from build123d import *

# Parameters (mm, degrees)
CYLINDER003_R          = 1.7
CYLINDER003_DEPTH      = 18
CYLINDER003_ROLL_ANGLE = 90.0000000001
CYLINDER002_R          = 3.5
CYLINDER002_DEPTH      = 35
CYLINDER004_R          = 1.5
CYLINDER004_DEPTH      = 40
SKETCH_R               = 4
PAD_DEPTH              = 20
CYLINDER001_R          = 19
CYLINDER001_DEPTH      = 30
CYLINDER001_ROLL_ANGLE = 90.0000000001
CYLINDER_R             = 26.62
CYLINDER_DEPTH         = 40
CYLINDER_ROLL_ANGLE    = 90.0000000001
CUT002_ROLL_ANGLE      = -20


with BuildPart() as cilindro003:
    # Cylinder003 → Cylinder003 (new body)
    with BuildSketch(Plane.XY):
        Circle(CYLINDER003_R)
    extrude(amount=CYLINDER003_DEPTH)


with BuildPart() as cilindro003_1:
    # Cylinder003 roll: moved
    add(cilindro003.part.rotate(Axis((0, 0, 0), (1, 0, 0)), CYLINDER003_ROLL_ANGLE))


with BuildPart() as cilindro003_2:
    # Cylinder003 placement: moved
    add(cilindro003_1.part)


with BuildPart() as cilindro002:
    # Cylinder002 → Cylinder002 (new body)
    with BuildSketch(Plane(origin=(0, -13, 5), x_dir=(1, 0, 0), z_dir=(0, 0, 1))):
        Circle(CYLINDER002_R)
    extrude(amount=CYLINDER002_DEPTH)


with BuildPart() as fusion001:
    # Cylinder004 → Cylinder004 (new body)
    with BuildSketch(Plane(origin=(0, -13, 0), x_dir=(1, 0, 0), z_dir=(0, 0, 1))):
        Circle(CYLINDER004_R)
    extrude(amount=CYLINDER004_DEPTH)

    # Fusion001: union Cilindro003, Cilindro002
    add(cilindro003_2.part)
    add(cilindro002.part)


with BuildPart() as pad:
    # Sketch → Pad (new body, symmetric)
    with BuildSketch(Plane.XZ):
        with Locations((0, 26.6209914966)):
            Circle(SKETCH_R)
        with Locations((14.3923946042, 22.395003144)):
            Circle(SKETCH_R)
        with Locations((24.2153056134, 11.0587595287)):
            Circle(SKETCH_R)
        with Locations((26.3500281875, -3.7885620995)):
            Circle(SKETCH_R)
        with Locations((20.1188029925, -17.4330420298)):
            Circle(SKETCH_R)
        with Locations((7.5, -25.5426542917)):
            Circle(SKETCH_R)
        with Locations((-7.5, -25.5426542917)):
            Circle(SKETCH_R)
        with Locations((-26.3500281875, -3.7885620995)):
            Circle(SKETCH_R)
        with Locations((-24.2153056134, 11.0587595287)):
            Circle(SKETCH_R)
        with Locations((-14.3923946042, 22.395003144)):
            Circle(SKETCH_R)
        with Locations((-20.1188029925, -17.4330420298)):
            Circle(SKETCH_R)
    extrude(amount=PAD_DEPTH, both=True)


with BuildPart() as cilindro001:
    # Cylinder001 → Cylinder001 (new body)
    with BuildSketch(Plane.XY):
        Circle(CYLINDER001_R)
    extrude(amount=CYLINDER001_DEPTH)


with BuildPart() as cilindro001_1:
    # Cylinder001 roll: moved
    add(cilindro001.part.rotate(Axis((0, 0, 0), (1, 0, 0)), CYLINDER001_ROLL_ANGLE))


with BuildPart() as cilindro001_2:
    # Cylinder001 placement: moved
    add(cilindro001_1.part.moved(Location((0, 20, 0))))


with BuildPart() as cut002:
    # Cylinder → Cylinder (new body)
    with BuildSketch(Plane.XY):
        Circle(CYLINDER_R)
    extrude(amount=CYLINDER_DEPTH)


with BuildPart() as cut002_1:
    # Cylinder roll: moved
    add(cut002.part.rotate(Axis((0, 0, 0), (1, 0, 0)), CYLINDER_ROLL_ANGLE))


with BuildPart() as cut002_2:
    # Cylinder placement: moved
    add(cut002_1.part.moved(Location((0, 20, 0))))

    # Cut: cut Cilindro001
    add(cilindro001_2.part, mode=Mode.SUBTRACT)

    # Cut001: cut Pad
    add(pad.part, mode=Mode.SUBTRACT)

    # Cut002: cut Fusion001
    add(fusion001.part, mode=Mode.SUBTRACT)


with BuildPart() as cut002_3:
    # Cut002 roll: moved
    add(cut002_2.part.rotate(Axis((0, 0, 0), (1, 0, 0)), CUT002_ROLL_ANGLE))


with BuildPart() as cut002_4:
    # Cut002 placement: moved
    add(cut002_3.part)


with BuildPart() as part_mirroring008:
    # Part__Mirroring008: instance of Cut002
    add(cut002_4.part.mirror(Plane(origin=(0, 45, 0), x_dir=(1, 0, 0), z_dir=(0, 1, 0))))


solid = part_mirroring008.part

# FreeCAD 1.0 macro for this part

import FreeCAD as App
import Part
import Sketcher
Q = App.Units.Quantity

doc = App.newDocument("Part")
body = doc.addObject("PartDesign::Body", "Body")

# Sketch on XY plane
sketch1 = body.newObject("Sketcher::SketchObject", "Sketch")
sketch1.AttachmentSupport = (doc.getObject("XY_Plane"), [""])
sketch1.MapMode = "FlatFace"
sketch1.addGeometry(Part.Circle(App.Vector(0, 0, 0), App.Vector(0, 0, 1), 1.7), False)
sketch1.addConstraint(Sketcher.Constraint("Coincident", 0, 3, -1, 1))
sketch1.addConstraint(Sketcher.Constraint("Diameter", 0, Q("3.4 mm")))
pad1 = body.newObject("PartDesign::Pad", "Pad")
pad1.Profile = sketch1
pad1.Length = 18
body2 = doc.addObject("PartDesign::Body", "Body001")
doc.recompute()

body.Placement = App.Placement(App.Vector(0, 0, 0), App.Rotation(App.Vector(1, 0, 0), 90))
boolean = body2.newObject("PartDesign::Boolean", "Boolean")
boolean.Type = "Fuse"
boolean.addObjects([body])
body3 = doc.addObject("PartDesign::Body", "Body002")

# Sketch on XY plane
sketch2 = body3.newObject("Sketcher::SketchObject", "Sketch001")
sketch2.AttachmentSupport = (doc.getObject("XY_Plane002"), [""])
sketch2.MapMode = "FlatFace"
sketch2.AttachmentOffset = App.Placement(App.Vector(0, 0, 5), App.Rotation())
sketch2.addGeometry(Part.Circle(App.Vector(0, -13, 0), App.Vector(0, 0, 1), 3.5), False)
sketch2.addConstraint(Sketcher.Constraint("PointOnObject", 0, 3, -2))
sketch2.addConstraint(Sketcher.Constraint("Diameter", 0, Q("7 mm")))
sketch2.addConstraint(Sketcher.Constraint("DistanceY", 0, 3, -1, 1, Q("13 mm")))
pad2 = body3.newObject("PartDesign::Pad", "Pad001")
pad2.Profile = sketch2
pad2.Length = 35
body4 = doc.addObject("PartDesign::Body", "Body003")

# Sketch on XY plane
sketch3 = body4.newObject("Sketcher::SketchObject", "Sketch002")
sketch3.AttachmentSupport = (doc.getObject("XY_Plane003"), [""])
sketch3.MapMode = "FlatFace"
sketch3.addGeometry(Part.Circle(App.Vector(0, -13, 0), App.Vector(0, 0, 1), 1.5), False)
sketch3.addConstraint(Sketcher.Constraint("PointOnObject", 0, 3, -2))
sketch3.addConstraint(Sketcher.Constraint("Diameter", 0, Q("3 mm")))
sketch3.addConstraint(Sketcher.Constraint("DistanceY", 0, 3, -1, 1, Q("13 mm")))
pad3 = body4.newObject("PartDesign::Pad", "Pad002")
pad3.Profile = sketch3
pad3.Length = 40
doc.recompute()

boolean2 = body4.newObject("PartDesign::Boolean", "Boolean001")
boolean2.Type = "Fuse"
boolean2.addObjects([body2])
doc.recompute()

boolean3 = body4.newObject("PartDesign::Boolean", "Boolean002")
boolean3.Type = "Fuse"
boolean3.addObjects([body3])
body5 = doc.addObject("PartDesign::Body", "Body004")
body5.AllowCompound = True

# Sketch on XZ plane
sketch4 = body5.newObject("Sketcher::SketchObject", "Sketch003")
sketch4.AttachmentSupport = (doc.getObject("XZ_Plane004"), [""])
sketch4.MapMode = "FlatFace"
sketch4.addGeometry(Part.Circle(App.Vector(0, 26.6, 0), App.Vector(0, 0, 1), 4), False)
sketch4.addGeometry(Part.Circle(App.Vector(14.4, 22.4, 0), App.Vector(0, 0, 1), 4), False)
sketch4.addGeometry(Part.Circle(App.Vector(24.2, 11.1, 0), App.Vector(0, 0, 1), 4), False)
sketch4.addGeometry(Part.Circle(App.Vector(26.4, -3.8, 0), App.Vector(0, 0, 1), 4), False)
sketch4.addGeometry(Part.Circle(App.Vector(20.1, -17.4, 0), App.Vector(0, 0, 1), 4), False)
sketch4.addGeometry(Part.Circle(App.Vector(7.5, -25.5, 0), App.Vector(0, 0, 1), 4), False)
sketch4.addGeometry(Part.Circle(App.Vector(-7.5, -25.5, 0), App.Vector(0, 0, 1), 4), False)
sketch4.addGeometry(Part.Circle(App.Vector(-26.4, -3.8, 0), App.Vector(0, 0, 1), 4), False)
sketch4.addGeometry(Part.Circle(App.Vector(-24.2, 11.1, 0), App.Vector(0, 0, 1), 4), False)
sketch4.addGeometry(Part.Circle(App.Vector(-14.4, 22.4, 0), App.Vector(0, 0, 1), 4), False)
sketch4.addGeometry(Part.Circle(App.Vector(-20.1, -17.4, 0), App.Vector(0, 0, 1), 4), False)
sketch4.addConstraint(Sketcher.Constraint("Equal", 0, 1))
sketch4.addConstraint(Sketcher.Constraint("Equal", 1, 2))
sketch4.addConstraint(Sketcher.Constraint("Equal", 2, 3))
sketch4.addConstraint(Sketcher.Constraint("Equal", 3, 4))
sketch4.addConstraint(Sketcher.Constraint("Equal", 4, 5))
sketch4.addConstraint(Sketcher.Constraint("Equal", 5, 6))
sketch4.addConstraint(Sketcher.Constraint("Equal", 6, 7))
sketch4.addConstraint(Sketcher.Constraint("Equal", 7, 8))
sketch4.addConstraint(Sketcher.Constraint("Equal", 8, 9))
sketch4.addConstraint(Sketcher.Constraint("Equal", 9, 10))
sketch4.addConstraint(Sketcher.Constraint("Symmetric", 5, 3, 6, 3, -2))
sketch4.addConstraint(Sketcher.Constraint("Symmetric", 3, 3, 7, 3, -2))
sketch4.addConstraint(Sketcher.Constraint("Symmetric", 2, 3, 8, 3, -2))
sketch4.addConstraint(Sketcher.Constraint("Symmetric", 1, 3, 9, 3, -2))
sketch4.addConstraint(Sketcher.Constraint("Symmetric", 4, 3, 10, 3, -2))
sketch4.addConstraint(Sketcher.Constraint("PointOnObject", 0, 3, -2))
sketch4.addConstraint(Sketcher.Constraint("Diameter", 0, Q("8 mm")))
sketch4.addConstraint(Sketcher.Constraint("DistanceX", 6, 3, 5, 3, Q("15 mm")))
sketch4.addConstraint(Sketcher.Constraint("DistanceY", 4, 3, 2, 3, Q("28.491802 mm")))
sketch4.addConstraint(Sketcher.Constraint("DistanceX", 8, 3, 1, 3, Q("38.6077 mm")))
sketch4.addConstraint(Sketcher.Constraint("DistanceY", -1, 1, 0, 3, Q("26.620991 mm")))
sketch4.addConstraint(Sketcher.Constraint("DistanceY", -1, 1, 2, 3, Q("11.05876 mm")))
sketch4.addConstraint(Sketcher.Constraint("DistanceX", -1, 1, 3, 3, Q("26.350028 mm")))
sketch4.addConstraint(Sketcher.Constraint("DistanceY", 1, 3, 0, 3, Q("4.225988 mm")))
sketch4.addConstraint(Sketcher.Constraint("DistanceX", 1, 3, 2, 3, Q("9.822911 mm")))
sketch4.addConstraint(Sketcher.Constraint("DistanceY", 3, 3, 2, 3, Q("14.847322 mm")))
sketch4.addConstraint(Sketcher.Constraint("DistanceX", 1, 3, 4, 3, Q("5.726408 mm")))
sketch4.addConstraint(Sketcher.Constraint("DistanceY", 5, 3, -1, 1, Q("25.542654 mm")))
pad4 = body5.newObject("PartDesign::Pad", "Pad003")
pad4.Profile = sketch4
pad4.Length = 40
pad4.Midplane = True
body6 = doc.addObject("PartDesign::Body", "Body005")

# Sketch on XY plane
sketch5 = body6.newObject("Sketcher::SketchObject", "Sketch004")
sketch5.AttachmentSupport = (doc.getObject("XY_Plane005"), [""])
sketch5.MapMode = "FlatFace"
sketch5.addGeometry(Part.Circle(App.Vector(0, 0, 0), App.Vector(0, 0, 1), 19), False)
sketch5.addConstraint(Sketcher.Constraint("Coincident", 0, 3, -1, 1))
sketch5.addConstraint(Sketcher.Constraint("Diameter", 0, Q("38 mm")))
pad5 = body6.newObject("PartDesign::Pad", "Pad004")
pad5.Profile = sketch5
pad5.Length = 30
body7 = doc.addObject("PartDesign::Body", "Body006")
doc.recompute()

body6.Placement = App.Placement(App.Vector(0, 0, 0), App.Rotation(App.Vector(1, 0, 0), 90))
boolean4 = body7.newObject("PartDesign::Boolean", "Boolean003")
boolean4.Type = "Fuse"
boolean4.addObjects([body6])
body8 = doc.addObject("PartDesign::Body", "Body007")
doc.recompute()

body7.Placement = App.Placement(App.Vector(0, 20, 0), App.Rotation(App.Vector(0, 0, 1), 0))
boolean5 = body8.newObject("PartDesign::Boolean", "Boolean004")
boolean5.Type = "Fuse"
boolean5.addObjects([body7])
body9 = doc.addObject("PartDesign::Body", "Body008")

# Sketch on XY plane
sketch6 = body9.newObject("Sketcher::SketchObject", "Sketch005")
sketch6.AttachmentSupport = (doc.getObject("XY_Plane008"), [""])
sketch6.MapMode = "FlatFace"
sketch6.addGeometry(Part.Circle(App.Vector(0, 0, 0), App.Vector(0, 0, 1), 27), False)
sketch6.addConstraint(Sketcher.Constraint("Coincident", 0, 3, -1, 1))
sketch6.addConstraint(Sketcher.Constraint("Diameter", 0, Q("53.24 mm")))
pad6 = body9.newObject("PartDesign::Pad", "Pad005")
pad6.Profile = sketch6
pad6.Length = 40
body10 = doc.addObject("PartDesign::Body", "Body009")
doc.recompute()

body9.Placement = App.Placement(App.Vector(0, 0, 0), App.Rotation(App.Vector(1, 0, 0), 90))
boolean6 = body10.newObject("PartDesign::Boolean", "Boolean005")
boolean6.Type = "Fuse"
boolean6.addObjects([body9])
body11 = doc.addObject("PartDesign::Body", "Body010")
doc.recompute()

body10.Placement = App.Placement(App.Vector(0, 20, 0), App.Rotation(App.Vector(0, 0, 1), 0))
boolean7 = body11.newObject("PartDesign::Boolean", "Boolean006")
boolean7.Type = "Fuse"
boolean7.addObjects([body10])
doc.recompute()

boolean8 = body11.newObject("PartDesign::Boolean", "Boolean007")
boolean8.Type = "Cut"
boolean8.addObjects([body8])
doc.recompute()

boolean9 = body11.newObject("PartDesign::Boolean", "Boolean008")
boolean9.Type = "Cut"
boolean9.addObjects([body5])
doc.recompute()

boolean10 = body11.newObject("PartDesign::Boolean", "Boolean009")
boolean10.Type = "Cut"
boolean10.addObjects([body4])
body12 = doc.addObject("PartDesign::Body", "Body011")
doc.recompute()

body11.Placement = App.Placement(App.Vector(0, 0, 0), App.Rotation(App.Vector(1, 0, 0), 340))
boolean11 = body12.newObject("PartDesign::Boolean", "Boolean010")
boolean11.Type = "Fuse"
boolean11.addObjects([body11])
body13 = doc.addObject("PartDesign::Body", "Body012")
doc.recompute()

mirroring = doc.addObject("Part::Mirroring", "Mirroring")
mirroring.Source = body12
mirroring.Base = App.Vector(0, 45, 0)
mirroring.Normal = App.Vector(0, 1, 0)
body13.BaseFeature = mirroring
doc.recompute()
body12.Visibility = False
mirroring.Visibility = False

doc.recompute()
